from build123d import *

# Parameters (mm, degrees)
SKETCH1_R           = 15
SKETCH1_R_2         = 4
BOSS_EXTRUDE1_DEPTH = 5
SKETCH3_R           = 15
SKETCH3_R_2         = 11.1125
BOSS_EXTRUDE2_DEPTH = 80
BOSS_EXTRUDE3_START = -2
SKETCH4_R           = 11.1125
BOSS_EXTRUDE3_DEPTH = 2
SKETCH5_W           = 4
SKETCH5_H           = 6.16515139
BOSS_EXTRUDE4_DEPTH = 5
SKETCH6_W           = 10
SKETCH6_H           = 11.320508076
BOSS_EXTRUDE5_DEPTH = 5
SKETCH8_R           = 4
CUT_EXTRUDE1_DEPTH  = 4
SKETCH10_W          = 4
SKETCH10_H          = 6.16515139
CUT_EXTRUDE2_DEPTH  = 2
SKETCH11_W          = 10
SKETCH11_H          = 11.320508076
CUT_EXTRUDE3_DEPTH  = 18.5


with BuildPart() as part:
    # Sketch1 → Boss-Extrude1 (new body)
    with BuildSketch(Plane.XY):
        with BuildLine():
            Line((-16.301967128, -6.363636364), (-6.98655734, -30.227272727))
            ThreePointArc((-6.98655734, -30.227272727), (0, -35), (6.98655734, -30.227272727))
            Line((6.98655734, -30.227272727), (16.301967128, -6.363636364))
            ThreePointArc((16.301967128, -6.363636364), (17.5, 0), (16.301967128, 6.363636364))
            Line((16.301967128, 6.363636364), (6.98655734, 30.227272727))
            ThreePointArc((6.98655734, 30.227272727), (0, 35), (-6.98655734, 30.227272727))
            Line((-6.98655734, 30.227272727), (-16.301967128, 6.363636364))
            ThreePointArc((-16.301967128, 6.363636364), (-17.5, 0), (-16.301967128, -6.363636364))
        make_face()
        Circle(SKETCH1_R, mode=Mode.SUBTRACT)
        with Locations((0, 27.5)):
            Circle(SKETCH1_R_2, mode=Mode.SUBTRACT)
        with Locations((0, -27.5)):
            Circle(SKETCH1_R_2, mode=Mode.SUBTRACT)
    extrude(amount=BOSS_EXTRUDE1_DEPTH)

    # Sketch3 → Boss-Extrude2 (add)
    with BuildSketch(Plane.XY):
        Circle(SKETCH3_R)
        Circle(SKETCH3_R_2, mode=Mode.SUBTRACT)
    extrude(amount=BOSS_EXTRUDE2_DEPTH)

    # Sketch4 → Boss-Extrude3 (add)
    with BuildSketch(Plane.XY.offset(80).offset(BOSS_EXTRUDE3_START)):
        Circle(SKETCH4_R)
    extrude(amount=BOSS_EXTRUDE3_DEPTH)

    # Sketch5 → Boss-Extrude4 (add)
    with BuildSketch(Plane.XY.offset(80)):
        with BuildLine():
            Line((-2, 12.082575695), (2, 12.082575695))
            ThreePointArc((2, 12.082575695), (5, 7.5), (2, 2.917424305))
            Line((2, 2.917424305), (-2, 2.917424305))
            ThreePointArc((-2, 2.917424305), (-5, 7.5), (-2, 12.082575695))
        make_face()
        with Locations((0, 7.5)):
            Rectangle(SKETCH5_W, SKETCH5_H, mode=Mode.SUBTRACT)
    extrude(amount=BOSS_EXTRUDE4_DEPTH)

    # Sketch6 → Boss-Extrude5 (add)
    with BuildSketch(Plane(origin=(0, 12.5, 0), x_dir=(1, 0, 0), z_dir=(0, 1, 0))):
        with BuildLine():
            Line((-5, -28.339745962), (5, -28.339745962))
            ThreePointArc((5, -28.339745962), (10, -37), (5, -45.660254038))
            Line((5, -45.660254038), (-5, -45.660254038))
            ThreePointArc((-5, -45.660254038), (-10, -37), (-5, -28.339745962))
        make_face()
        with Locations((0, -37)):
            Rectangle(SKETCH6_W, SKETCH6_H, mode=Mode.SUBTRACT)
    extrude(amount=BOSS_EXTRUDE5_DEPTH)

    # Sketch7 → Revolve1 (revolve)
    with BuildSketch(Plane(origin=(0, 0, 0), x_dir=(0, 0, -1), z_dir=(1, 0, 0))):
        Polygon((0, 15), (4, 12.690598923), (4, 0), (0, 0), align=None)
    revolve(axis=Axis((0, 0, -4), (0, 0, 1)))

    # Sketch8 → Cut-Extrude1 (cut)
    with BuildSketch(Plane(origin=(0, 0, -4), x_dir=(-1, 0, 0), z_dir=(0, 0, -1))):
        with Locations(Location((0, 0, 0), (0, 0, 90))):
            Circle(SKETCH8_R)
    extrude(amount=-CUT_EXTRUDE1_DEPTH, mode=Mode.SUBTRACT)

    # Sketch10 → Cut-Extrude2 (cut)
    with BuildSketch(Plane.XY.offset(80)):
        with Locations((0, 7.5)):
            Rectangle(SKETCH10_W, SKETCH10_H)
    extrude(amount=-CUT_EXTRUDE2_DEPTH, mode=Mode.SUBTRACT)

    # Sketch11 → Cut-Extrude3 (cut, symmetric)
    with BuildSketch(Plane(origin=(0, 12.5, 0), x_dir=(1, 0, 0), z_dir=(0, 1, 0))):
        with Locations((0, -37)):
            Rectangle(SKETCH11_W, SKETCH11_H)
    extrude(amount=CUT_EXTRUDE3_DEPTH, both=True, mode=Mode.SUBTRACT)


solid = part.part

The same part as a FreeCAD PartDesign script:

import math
import FreeCAD as App
import Part
import Sketcher
Q = App.Units.Quantity

doc = App.newDocument("Part")
body = doc.addObject("PartDesign::Body", "Body")

# Sketch on XY plane
sketch1 = doc.addObject("Sketcher::SketchObject", "Sketch")
body.addObject(sketch1)
sketch1.AttachmentSupport = (doc.XY_Plane, [""])
sketch1.MapMode = "FlatFace"
sketch1.addGeometry([
    Part.LineSegment(App.Vector(-16.3, -6.4, 0), App.Vector(-7, -30.2, 0)),  # 0
    Part.ArcOfCircle(Part.Circle(App.Vector(0, -27.5, 0), App.Vector(0, 0, 1), 7.5), math.radians(-159), math.radians(-21)),  # 1
    Part.LineSegment(App.Vector(7, -30.2, 0), App.Vector(16.3, -6.4, 0)),  # 2
    Part.ArcOfCircle(Part.Circle(App.Vector(0, 0, 0), App.Vector(0, 0, 1), 17.5), math.radians(-21), math.radians(21)),  # 3
    Part.LineSegment(App.Vector(16.3, 6.4, 0), App.Vector(7, 30.2, 0)),  # 4
    Part.ArcOfCircle(Part.Circle(App.Vector(0, 27.5, 0), App.Vector(0, 0, 1), 7.5), math.radians(21), math.radians(159)),  # 5
    Part.LineSegment(App.Vector(-7, 30.2, 0), App.Vector(-16.3, 6.4, 0)),  # 6
    Part.ArcOfCircle(Part.Circle(App.Vector(0, 0, 0), App.Vector(0, 0, 1), 17.5), math.radians(159), math.radians(201)),  # 7
    Part.Circle(App.Vector(0, -27.5, 0), App.Vector(0, 0, 1), 4),  # 8
    Part.Circle(App.Vector(0, 0, 0), App.Vector(0, 0, 1), 15),  # 9
    Part.Circle(App.Vector(0, 27.5, 0), App.Vector(0, 0, 1), 4),  # 10
], False)
sketch1.addConstraint([
    Sketcher.Constraint("Tangent", 0, 2, 1, 1),
    Sketcher.Constraint("Tangent", 1, 2, 2, 1),
    Sketcher.Constraint("Tangent", 2, 2, 3, 1),
    Sketcher.Constraint("Tangent", 3, 2, 4, 1),
    Sketcher.Constraint("Tangent", 4, 2, 5, 1),
    Sketcher.Constraint("Tangent", 5, 2, 6, 1),
    Sketcher.Constraint("Tangent", 6, 2, 7, 1),
    Sketcher.Constraint("Tangent", 7, 2, 0, 1),
    Sketcher.Constraint("Coincident", 3, 3, -1, 1),
    Sketcher.Constraint("Coincident", 7, 3, -1, 1),
    Sketcher.Constraint("Coincident", 9, 3, -1, 1),
    Sketcher.Constraint("Coincident", 8, 3, 1, 3),
    Sketcher.Constraint("Coincident", 10, 3, 5, 3),
    Sketcher.Constraint("Equal", 1, 5),
    Sketcher.Constraint("Equal", 3, 7),
    Sketcher.Constraint("Equal", 8, 10),
    Sketcher.Constraint("Symmetric", 1, 3, 5, 3, -1, 1),
    Sketcher.Constraint("PointOnObject", 1, 3, -2),
    Sketcher.Constraint("Diameter", 8, Q("8 mm")),
    Sketcher.Constraint("Diameter", 9, Q("30 mm")),
    Sketcher.Constraint("Radius", 1, Q("7.5 mm")),
    Sketcher.Constraint("Radius", 3, Q("17.5 mm")),
    Sketcher.Constraint("DistanceY", 1, 3, 5, 3, Q("55 mm")),
])
pad1 = doc.addObject("PartDesign::Pad", "Pad")
body.addObject(pad1)
pad1.Profile = sketch1
pad1.Length = 5

# Sketch on XY plane
sketch2 = doc.addObject("Sketcher::SketchObject", "Sketch001")
body.addObject(sketch2)
sketch2.AttachmentSupport = (doc.XY_Plane, [""])
sketch2.MapMode = "FlatFace"
sketch2.addGeometry([
    Part.Circle(App.Vector(0, 0, 0), App.Vector(0, 0, 1), 15),
    Part.Circle(App.Vector(0, 0, 0), App.Vector(0, 0, 1), 11),
], False)
sketch2.addConstraint([
    Sketcher.Constraint("Coincident", 0, 3, -1, 1),
    Sketcher.Constraint("Coincident", 1, 3, -1, 1),
    Sketcher.Constraint("Diameter", 0, Q("30 mm")),
    Sketcher.Constraint("Diameter", 1, Q("22.225 mm")),
])
pad2 = doc.addObject("PartDesign::Pad", "Pad001")
body.addObject(pad2)
pad2.Profile = sketch2
pad2.Length = 80

# Sketch on XY plane
sketch3 = doc.addObject("Sketcher::SketchObject", "Sketch002")
body.addObject(sketch3)
sketch3.AttachmentSupport = (doc.XY_Plane, [""])
sketch3.MapMode = "FlatFace"
sketch3.AttachmentOffset = App.Placement(App.Vector(0, 0, 78), App.Rotation())
sketch3.addGeometry(Part.Circle(App.Vector(0, 0, 0), App.Vector(0, 0, 1), 11), False)
sketch3.addConstraint([
    Sketcher.Constraint("Coincident", 0, 3, -1, 1),
    Sketcher.Constraint("Diameter", 0, Q("22.225 mm")),
])
pad3 = doc.addObject("PartDesign::Pad", "Pad002")
body.addObject(pad3)
pad3.Profile = sketch3
pad3.Length = 2

# Sketch on XY plane
sketch4 = doc.addObject("Sketcher::SketchObject", "Sketch003")
body.addObject(sketch4)
sketch4.AttachmentSupport = (doc.XY_Plane, [""])
sketch4.MapMode = "FlatFace"
sketch4.AttachmentOffset = App.Placement(App.Vector(0, 0, 80), App.Rotation())
sketch4.addGeometry([
    Part.LineSegment(App.Vector(2, 12.1, 0), App.Vector(-2, 12.1, 0)),  # 0
    Part.ArcOfCircle(Part.Circle(App.Vector(0, 7.5, 0), App.Vector(0, 0, 1), 5), math.radians(114), math.radians(246)),  # 1
    Part.LineSegment(App.Vector(-2, 2.9, 0), App.Vector(2, 2.9, 0)),  # 2
    Part.ArcOfCircle(Part.Circle(App.Vector(0, 7.5, 0), App.Vector(0, 0, 1), 5), math.radians(-66), math.radians(66)),  # 3
    Part.LineSegment(App.Vector(-2, 4.4, 0), App.Vector(-2, 10.6, 0)),  # 4
    Part.LineSegment(App.Vector(-2, 10.6, 0), App.Vector(2, 10.6, 0)),  # 5
    Part.LineSegment(App.Vector(2, 10.6, 0), App.Vector(2, 4.4, 0)),  # 6
    Part.LineSegment(App.Vector(2, 4.4, 0), App.Vector(-2, 4.4, 0)),  # 7
], False)
sketch4.addConstraint([
    Sketcher.Constraint("Coincident", 0, 2, 1, 1),
    Sketcher.Constraint("Coincident", 1, 2, 2, 1),
    Sketcher.Constraint("Coincident", 2, 2, 3, 1),
    Sketcher.Constraint("Coincident", 3, 2, 0, 1),
    Sketcher.Constraint("Coincident", 4, 2, 5, 1),
    Sketcher.Constraint("Coincident", 5, 2, 6, 1),
    Sketcher.Constraint("Coincident", 6, 2, 7, 1),
    Sketcher.Constraint("Coincident", 7, 2, 4, 1),
    Sketcher.Constraint("Horizontal", 0),
    Sketcher.Constraint("Horizontal", 2),
    Sketcher.Constraint("Vertical", 4),
    Sketcher.Constraint("Horizontal", 5),
    Sketcher.Constraint("Vertical", 6),
    Sketcher.Constraint("Horizontal", 7),
    Sketcher.Constraint("Coincident", 3, 3, 1, 3),
    Sketcher.Constraint("Equal", 1, 3),
    Sketcher.Constraint("PointOnObject", 1, 3, -2),
    Sketcher.Constraint("Vertical", 0, 2, 1, 2),
    Sketcher.Constraint("Vertical", 1, 2, 4, 2),
    Sketcher.Constraint("Vertical", 3, 2, 5, 2),
    Sketcher.Constraint("Radius", 1, Q("5 mm")),
    Sketcher.Constraint("DistanceX", 0, 2, 0, 1, Q("4 mm")),
    Sketcher.Constraint("DistanceY", -1, 1, 1, 3, Q("7.5 mm")),
    Sketcher.Constraint("DistanceY", 4, 2, 0, 2, Q("1.5 mm")),
    Sketcher.Constraint("DistanceY", 2, 2, 6, 2, Q("1.5 mm")),
])
pad4 = doc.addObject("PartDesign::Pad", "Pad003")
body.addObject(pad4)
pad4.Profile = sketch4
pad4.Length = 5

# Sketch on XZ plane
sketch5 = doc.addObject("Sketcher::SketchObject", "Sketch004")
body.addObject(sketch5)
sketch5.AttachmentSupport = (doc.XZ_Plane, [""])
sketch5.MapMode = "FlatFace"
sketch5.AttachmentOffset = App.Placement(App.Vector(0, 0, -12.5), App.Rotation())
sketch5.addGeometry([
    Part.LineSegment(App.Vector(5, 28, 0), App.Vector(-5, 28, 0)),  # 0
    Part.ArcOfCircle(Part.Circle(App.Vector(0, 37, 0), App.Vector(0, 0, 1), 10), math.radians(120), math.radians(240)),  # 1
    Part.LineSegment(App.Vector(-5, 46, 0), App.Vector(5, 46, 0)),  # 2
    Part.ArcOfCircle(Part.Circle(App.Vector(0, 37, 0), App.Vector(0, 0, 1), 10), math.radians(-60), math.radians(60)),  # 3
    Part.LineSegment(App.Vector(-5, 43, 0), App.Vector(-5, 31, 0)),  # 4
    Part.LineSegment(App.Vector(-5, 31, 0), App.Vector(5, 31, 0)),  # 5
    Part.LineSegment(App.Vector(5, 31, 0), App.Vector(5, 43, 0)),  # 6
    Part.LineSegment(App.Vector(5, 43, 0), App.Vector(-5, 43, 0)),  # 7
], False)
sketch5.addConstraint([
    Sketcher.Constraint("Coincident", 0, 2, 1, 2),
    Sketcher.Constraint("Coincident", 1, 1, 2, 1),
    Sketcher.Constraint("Coincident", 2, 2, 3, 2),
    Sketcher.Constraint("Coincident", 3, 1, 0, 1),
    Sketcher.Constraint("Coincident", 4, 2, 5, 1),
    Sketcher.Constraint("Coincident", 5, 2, 6, 1),
    Sketcher.Constraint("Coincident", 6, 2, 7, 1),
    Sketcher.Constraint("Coincident", 7, 2, 4, 1),
    Sketcher.Constraint("Horizontal", 0),
    Sketcher.Constraint("Horizontal", 2),
    Sketcher.Constraint("Vertical", 4),
    Sketcher.Constraint("Horizontal", 5),
    Sketcher.Constraint("Vertical", 6),
    Sketcher.Constraint("Horizontal", 7),
    Sketcher.Constraint("Coincident", 3, 3, 1, 3),
    Sketcher.Constraint("Equal", 1, 3),
    Sketcher.Constraint("PointOnObject", 1, 3, -2),
    Sketcher.Constraint("Vertical", 0, 2, 1, 1),
    Sketcher.Constraint("Vertical", 1, 1, 4, 2),
    Sketcher.Constraint("Vertical", 3, 1, 5, 2),
    Sketcher.Constraint("Radius", 1, Q("10 mm")),
    Sketcher.Constraint("DistanceX", 0, 2, 0, 1, Q("10 mm")),
    Sketcher.Constraint("DistanceY", -1, 1, 1, 3, Q("37 mm")),
    Sketcher.Constraint("DistanceY", 0, 2, 4, 2, Q("3 mm")),
    Sketcher.Constraint("DistanceY", 6, 2, 2, 2, Q("3 mm")),
])
pad5 = doc.addObject("PartDesign::Pad", "Pad004")
body.addObject(pad5)
pad5.Profile = sketch5
pad5.Length = 5
pad5.Reversed = True

# Sketch on YZ plane
sketch6 = doc.addObject("Sketcher::SketchObject", "Sketch005")
body.addObject(sketch6)
sketch6.AttachmentSupport = (doc.YZ_Plane, [""])
sketch6.MapMode = "FlatFace"
sketch6.addGeometry([
    Part.LineSegment(App.Vector(12.7, -4, 0), App.Vector(15, 0, 0)),
    Part.LineSegment(App.Vector(15, 0, 0), App.Vector(0, 0, 0)),
    Part.LineSegment(App.Vector(0, 0, 0), App.Vector(0, -4, 0)),
    Part.LineSegment(App.Vector(0, -4, 0), App.Vector(12.7, -4, 0)),
], False)
sketch6.addConstraint([
    Sketcher.Constraint("Coincident", 0, 2, 1, 1),
    Sketcher.Constraint("Coincident", 1, 2, 2, 1),
    Sketcher.Constraint("Coincident", 2, 2, 3, 1),
    Sketcher.Constraint("Coincident", 3, 2, 0, 1),
    Sketcher.Constraint("Horizontal", 1),
    Sketcher.Constraint("Vertical", 2),
    Sketcher.Constraint("Horizontal", 3),
    Sketcher.Constraint("Coincident", 1, 2, -1, 1),
    Sketcher.Constraint("DistanceX", 1, 2, 1, 1, Q("15 mm")),
    Sketcher.Constraint("DistanceY", 2, 2, 2, 1, Q("4 mm")),
    Sketcher.Constraint("Angle", 0, Q("60 deg")),
])
revolution = doc.addObject("PartDesign::Revolution", "Revolution")
body.addObject(revolution)
revolution.Profile = sketch6
revolution.ReferenceAxis = (sketch6, ["V_Axis"])
revolution.Angle = 360

# Sketch on XY plane
sketch7 = doc.addObject("Sketcher::SketchObject", "Sketch006")
body.addObject(sketch7)
sketch7.AttachmentSupport = (doc.XY_Plane, [""])
sketch7.MapMode = "FlatFace"
sketch7.AttachmentOffset = App.Placement(App.Vector(0, 0, -4), App.Rotation())
sketch7.addGeometry(Part.Circle(App.Vector(0, 0, 0), App.Vector(0, 0, 1), 4), False)
sketch7.addConstraint([
    Sketcher.Constraint("Coincident", 0, 3, -1, 1),
    Sketcher.Constraint("Diameter", 0, Q("8 mm")),
])
pocket1 = doc.addObject("PartDesign::Pocket", "Pocket")
body.addObject(pocket1)
pocket1.Profile = sketch7
pocket1.Length = 4
pocket1.Reversed = True

# Sketch on XY plane
sketch8 = doc.addObject("Sketcher::SketchObject", "Sketch007")
body.addObject(sketch8)
sketch8.AttachmentSupport = (doc.XY_Plane, [""])
sketch8.MapMode = "FlatFace"
sketch8.AttachmentOffset = App.Placement(App.Vector(0, 0, 80), App.Rotation())
sketch8.addGeometry([
    Part.LineSegment(App.Vector(-2, 10.6, 0), App.Vector(-2, 4.4, 0)),
    Part.LineSegment(App.Vector(-2, 4.4, 0), App.Vector(2, 4.4, 0)),
    Part.LineSegment(App.Vector(2, 4.4, 0), App.Vector(2, 10.6, 0)),
    Part.LineSegment(App.Vector(2, 10.6, 0), App.Vector(-2, 10.6, 0)),
], False)
sketch8.addConstraint([
    Sketcher.Constraint("Coincident", 0, 2, 1, 1),
    Sketcher.Constraint("Coincident", 1, 2, 2, 1),
    Sketcher.Constraint("Coincident", 2, 2, 3, 1),
    Sketcher.Constraint("Coincident", 3, 2, 0, 1),
    Sketcher.Constraint("Vertical", 0),
    Sketcher.Constraint("Horizontal", 1),
    Sketcher.Constraint("Vertical", 2),
    Sketcher.Constraint("Horizontal", 3),
    Sketcher.Constraint("DistanceX", 1, 1, 1, 2, Q("4 mm")),
    Sketcher.Constraint("DistanceX", 0, 2, -1, 1, Q("2 mm")),
    Sketcher.Constraint("DistanceY", 0, 2, 0, 1, Q("6.165151 mm")),
    Sketcher.Constraint("DistanceY", -1, 1, 0, 2, Q("4.417424 mm")),
])
pocket2 = doc.addObject("PartDesign::Pocket", "Pocket001")
body.addObject(pocket2)
pocket2.Profile = sketch8
pocket2.Length = 2

# Sketch on XZ plane
sketch9 = doc.addObject("Sketcher::SketchObject", "Sketch008")
body.addObject(sketch9)
sketch9.AttachmentSupport = (doc.XZ_Plane, [""])
sketch9.MapMode = "FlatFace"
sketch9.AttachmentOffset = App.Placement(App.Vector(0, 0, -12.5), App.Rotation())
sketch9.addGeometry([
    Part.LineSegment(App.Vector(-5, 31, 0), App.Vector(-5, 43, 0)),
    Part.LineSegment(App.Vector(-5, 43, 0), App.Vector(5, 43, 0)),
    Part.LineSegment(App.Vector(5, 43, 0), App.Vector(5, 31, 0)),
    Part.LineSegment(App.Vector(5, 31, 0), App.Vector(-5, 31, 0)),
], False)
sketch9.addConstraint([
    Sketcher.Constraint("Coincident", 0, 2, 1, 1),
    Sketcher.Constraint("Coincident", 1, 2, 2, 1),
    Sketcher.Constraint("Coincident", 2, 2, 3, 1),
    Sketcher.Constraint("Coincident", 3, 2, 0, 1),
    Sketcher.Constraint("Vertical", 0),
    Sketcher.Constraint("Horizontal", 1),
    Sketcher.Constraint("Vertical", 2),
    Sketcher.Constraint("Horizontal", 3),
    Sketcher.Constraint("DistanceX", 1, 1, 1, 2, Q("10 mm")),
    Sketcher.Constraint("DistanceX", 0, 2, -1, 1, Q("5 mm")),
    Sketcher.Constraint("DistanceY", 0, 1, 0, 2, Q("11.320508 mm")),
    Sketcher.Constraint("DistanceY", -1, 1, 0, 2, Q("42.660254 mm")),
])
pocket3 = doc.addObject("PartDesign::Pocket", "Pocket002")
body.addObject(pocket3)
pocket3.Profile = sketch9
pocket3.Length = 37
pocket3.Midplane = True

doc.recompute()
